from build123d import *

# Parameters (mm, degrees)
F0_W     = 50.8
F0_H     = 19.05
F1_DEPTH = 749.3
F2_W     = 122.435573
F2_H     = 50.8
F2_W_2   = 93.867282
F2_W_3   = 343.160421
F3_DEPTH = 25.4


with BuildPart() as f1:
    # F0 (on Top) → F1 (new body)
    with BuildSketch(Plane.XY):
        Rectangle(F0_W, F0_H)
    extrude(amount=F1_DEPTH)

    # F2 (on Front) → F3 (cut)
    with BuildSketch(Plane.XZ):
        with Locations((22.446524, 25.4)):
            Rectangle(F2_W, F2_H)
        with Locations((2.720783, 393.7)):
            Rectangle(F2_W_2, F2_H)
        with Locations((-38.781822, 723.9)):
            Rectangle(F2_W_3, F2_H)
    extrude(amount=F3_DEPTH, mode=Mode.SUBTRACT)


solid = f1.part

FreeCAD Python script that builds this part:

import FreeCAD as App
import Part
import Sketcher
Q = App.Units.Quantity

doc = App.newDocument("Part")
body = doc.addObject("PartDesign::Body", "Body")

# Sketch on XY plane
sketch1 = doc.addObject("Sketcher::SketchObject", "Sketch")
body.addObject(sketch1)
sketch1.AttachmentSupport = (doc.XY_Plane, [""])
sketch1.MapMode = "FlatFace"
sketch1.addGeometry([
    Part.LineSegment(App.Vector(-25.4, 9.525, 0), App.Vector(-25.4, -9.525, 0)),
    Part.LineSegment(App.Vector(-25.4, -9.525, 0), App.Vector(25.4, -9.525, 0)),
    Part.LineSegment(App.Vector(25.4, -9.525, 0), App.Vector(25.4, 9.525, 0)),
    Part.LineSegment(App.Vector(25.4, 9.525, 0), App.Vector(-25.4, 9.525, 0)),
], False)
sketch1.addConstraint([
    Sketcher.Constraint("Coincident", 0, 2, 1, 1),
    Sketcher.Constraint("Coincident", 1, 2, 2, 1),
    Sketcher.Constraint("Coincident", 2, 2, 3, 1),
    Sketcher.Constraint("Coincident", 3, 2, 0, 1),
    Sketcher.Constraint("Vertical", 0),
    Sketcher.Constraint("Horizontal", 1),
    Sketcher.Constraint("Vertical", 2),
    Sketcher.Constraint("Horizontal", 3),
    Sketcher.Constraint("Symmetric", 0, 2, 2, 2, -1, 1),
    Sketcher.Constraint("DistanceX", 1, 1, 1, 2, Q("2 in")),
    Sketcher.Constraint("DistanceY", 0, 2, 0, 1, Q("0.75 in")),
])
pad1 = doc.addObject("PartDesign::Pad", "Pad")
body.addObject(pad1)
pad1.Profile = sketch1
pad1.Length = Q("29.5 in")

# Sketch on XZ plane
sketch2 = doc.addObject("Sketcher::SketchObject", "Sketch001")
body.addObject(sketch2)
sketch2.AttachmentSupport = (doc.XZ_Plane, [""])
sketch2.MapMode = "FlatFace"
sketch2.addGeometry([
    Part.LineSegment(App.Vector(-38.771262, 50.8, 0), App.Vector(-38.771262, 0, 0)),  # 0
    Part.LineSegment(App.Vector(-38.771262, 0, 0), App.Vector(83.66431, 0, 0)),  # 1
    Part.LineSegment(App.Vector(83.66431, 0, 0), App.Vector(83.66431, 50.8, 0)),  # 2
    Part.LineSegment(App.Vector(83.66431, 50.8, 0), App.Vector(-38.771262, 50.8, 0)),  # 3
    Part.LineSegment(App.Vector(-44.212858, 419.1, 0), App.Vector(-44.212858, 368.3, 0)),  # 4
    Part.LineSegment(App.Vector(-44.212858, 368.3, 0), App.Vector(49.654424, 368.3, 0)),  # 5
    Part.LineSegment(App.Vector(49.654424, 368.3, 0), App.Vector(49.654424, 419.1, 0)),  # 6
    Part.LineSegment(App.Vector(49.654424, 419.1, 0), App.Vector(-44.212858, 419.1, 0)),  # 7
    Part.LineSegment(App.Vector(-210.362032, 749.3, 0), App.Vector(-210.362032, 698.5, 0)),  # 8
    Part.LineSegment(App.Vector(-210.362032, 698.5, 0), App.Vector(132.798388, 698.5, 0)),  # 9
    Part.LineSegment(App.Vector(132.798388, 698.5, 0), App.Vector(132.798388, 749.3, 0)),  # 10
    Part.LineSegment(App.Vector(132.798388, 749.3, 0), App.Vector(-210.362032, 749.3, 0)),  # 11
], False)
sketch2.addConstraint([
    Sketcher.Constraint("Coincident", 0, 2, 1, 1),
    Sketcher.Constraint("Coincident", 1, 2, 2, 1),
    Sketcher.Constraint("Coincident", 2, 2, 3, 1),
    Sketcher.Constraint("Coincident", 3, 2, 0, 1),
    Sketcher.Constraint("Coincident", 4, 2, 5, 1),
    Sketcher.Constraint("Coincident", 5, 2, 6, 1),
    Sketcher.Constraint("Coincident", 6, 2, 7, 1),
    Sketcher.Constraint("Coincident", 7, 2, 4, 1),
    Sketcher.Constraint("Coincident", 8, 2, 9, 1),
    Sketcher.Constraint("Coincident", 9, 2, 10, 1),
    Sketcher.Constraint("Coincident", 10, 2, 11, 1),
    Sketcher.Constraint("Coincident", 11, 2, 8, 1),
    Sketcher.Constraint("Vertical", 0),
    Sketcher.Constraint("Horizontal", 1),
    Sketcher.Constraint("Vertical", 2),
    Sketcher.Constraint("Horizontal", 3),
    Sketcher.Constraint("Vertical", 4),
    Sketcher.Constraint("Horizontal", 5),
    Sketcher.Constraint("Vertical", 6),
    Sketcher.Constraint("Horizontal", 7),
    Sketcher.Constraint("Vertical", 8),
    Sketcher.Constraint("Horizontal", 9),
    Sketcher.Constraint("Vertical", 10),
    Sketcher.Constraint("Horizontal", 11),
    Sketcher.Constraint("PointOnObject", 0, 2, -1),
    Sketcher.Constraint("Equal", 2, 4),
    Sketcher.Constraint("Equal", 6, 8),
    Sketcher.Constraint("DistanceY", 0, 2, 0, 1, Q("2 in")),
    Sketcher.Constraint("DistanceY", 7, 2, 8, 2, Q("11 in")),
    Sketcher.Constraint("DistanceY", -1, 1, 4, 2, Q("14.5 in")),
    Sketcher.Constraint("DistanceX", 5, 1, 5, 2, Q("93.867282 mm")),
    Sketcher.Constraint("DistanceX", 9, 1, 9, 2, Q("343.160421 mm")),
    Sketcher.Constraint("DistanceX", 1, 1, 1, 2, Q("122.435573 mm")),
    Sketcher.Constraint("DistanceX", -1, 1, 1, 2, Q("83.66431 mm")),
    Sketcher.Constraint("DistanceX", -1, 1, 9, 2, Q("132.798388 mm")),
    Sketcher.Constraint("DistanceX", 4, 2, 2, 2, Q("127.877168 mm")),
])
pocket1 = doc.addObject("PartDesign::Pocket", "Pocket")
body.addObject(pocket1)
pocket1.Profile = sketch2
pocket1.Length = Q("1 in")
pocket1.Reversed = True

doc.recompute()
